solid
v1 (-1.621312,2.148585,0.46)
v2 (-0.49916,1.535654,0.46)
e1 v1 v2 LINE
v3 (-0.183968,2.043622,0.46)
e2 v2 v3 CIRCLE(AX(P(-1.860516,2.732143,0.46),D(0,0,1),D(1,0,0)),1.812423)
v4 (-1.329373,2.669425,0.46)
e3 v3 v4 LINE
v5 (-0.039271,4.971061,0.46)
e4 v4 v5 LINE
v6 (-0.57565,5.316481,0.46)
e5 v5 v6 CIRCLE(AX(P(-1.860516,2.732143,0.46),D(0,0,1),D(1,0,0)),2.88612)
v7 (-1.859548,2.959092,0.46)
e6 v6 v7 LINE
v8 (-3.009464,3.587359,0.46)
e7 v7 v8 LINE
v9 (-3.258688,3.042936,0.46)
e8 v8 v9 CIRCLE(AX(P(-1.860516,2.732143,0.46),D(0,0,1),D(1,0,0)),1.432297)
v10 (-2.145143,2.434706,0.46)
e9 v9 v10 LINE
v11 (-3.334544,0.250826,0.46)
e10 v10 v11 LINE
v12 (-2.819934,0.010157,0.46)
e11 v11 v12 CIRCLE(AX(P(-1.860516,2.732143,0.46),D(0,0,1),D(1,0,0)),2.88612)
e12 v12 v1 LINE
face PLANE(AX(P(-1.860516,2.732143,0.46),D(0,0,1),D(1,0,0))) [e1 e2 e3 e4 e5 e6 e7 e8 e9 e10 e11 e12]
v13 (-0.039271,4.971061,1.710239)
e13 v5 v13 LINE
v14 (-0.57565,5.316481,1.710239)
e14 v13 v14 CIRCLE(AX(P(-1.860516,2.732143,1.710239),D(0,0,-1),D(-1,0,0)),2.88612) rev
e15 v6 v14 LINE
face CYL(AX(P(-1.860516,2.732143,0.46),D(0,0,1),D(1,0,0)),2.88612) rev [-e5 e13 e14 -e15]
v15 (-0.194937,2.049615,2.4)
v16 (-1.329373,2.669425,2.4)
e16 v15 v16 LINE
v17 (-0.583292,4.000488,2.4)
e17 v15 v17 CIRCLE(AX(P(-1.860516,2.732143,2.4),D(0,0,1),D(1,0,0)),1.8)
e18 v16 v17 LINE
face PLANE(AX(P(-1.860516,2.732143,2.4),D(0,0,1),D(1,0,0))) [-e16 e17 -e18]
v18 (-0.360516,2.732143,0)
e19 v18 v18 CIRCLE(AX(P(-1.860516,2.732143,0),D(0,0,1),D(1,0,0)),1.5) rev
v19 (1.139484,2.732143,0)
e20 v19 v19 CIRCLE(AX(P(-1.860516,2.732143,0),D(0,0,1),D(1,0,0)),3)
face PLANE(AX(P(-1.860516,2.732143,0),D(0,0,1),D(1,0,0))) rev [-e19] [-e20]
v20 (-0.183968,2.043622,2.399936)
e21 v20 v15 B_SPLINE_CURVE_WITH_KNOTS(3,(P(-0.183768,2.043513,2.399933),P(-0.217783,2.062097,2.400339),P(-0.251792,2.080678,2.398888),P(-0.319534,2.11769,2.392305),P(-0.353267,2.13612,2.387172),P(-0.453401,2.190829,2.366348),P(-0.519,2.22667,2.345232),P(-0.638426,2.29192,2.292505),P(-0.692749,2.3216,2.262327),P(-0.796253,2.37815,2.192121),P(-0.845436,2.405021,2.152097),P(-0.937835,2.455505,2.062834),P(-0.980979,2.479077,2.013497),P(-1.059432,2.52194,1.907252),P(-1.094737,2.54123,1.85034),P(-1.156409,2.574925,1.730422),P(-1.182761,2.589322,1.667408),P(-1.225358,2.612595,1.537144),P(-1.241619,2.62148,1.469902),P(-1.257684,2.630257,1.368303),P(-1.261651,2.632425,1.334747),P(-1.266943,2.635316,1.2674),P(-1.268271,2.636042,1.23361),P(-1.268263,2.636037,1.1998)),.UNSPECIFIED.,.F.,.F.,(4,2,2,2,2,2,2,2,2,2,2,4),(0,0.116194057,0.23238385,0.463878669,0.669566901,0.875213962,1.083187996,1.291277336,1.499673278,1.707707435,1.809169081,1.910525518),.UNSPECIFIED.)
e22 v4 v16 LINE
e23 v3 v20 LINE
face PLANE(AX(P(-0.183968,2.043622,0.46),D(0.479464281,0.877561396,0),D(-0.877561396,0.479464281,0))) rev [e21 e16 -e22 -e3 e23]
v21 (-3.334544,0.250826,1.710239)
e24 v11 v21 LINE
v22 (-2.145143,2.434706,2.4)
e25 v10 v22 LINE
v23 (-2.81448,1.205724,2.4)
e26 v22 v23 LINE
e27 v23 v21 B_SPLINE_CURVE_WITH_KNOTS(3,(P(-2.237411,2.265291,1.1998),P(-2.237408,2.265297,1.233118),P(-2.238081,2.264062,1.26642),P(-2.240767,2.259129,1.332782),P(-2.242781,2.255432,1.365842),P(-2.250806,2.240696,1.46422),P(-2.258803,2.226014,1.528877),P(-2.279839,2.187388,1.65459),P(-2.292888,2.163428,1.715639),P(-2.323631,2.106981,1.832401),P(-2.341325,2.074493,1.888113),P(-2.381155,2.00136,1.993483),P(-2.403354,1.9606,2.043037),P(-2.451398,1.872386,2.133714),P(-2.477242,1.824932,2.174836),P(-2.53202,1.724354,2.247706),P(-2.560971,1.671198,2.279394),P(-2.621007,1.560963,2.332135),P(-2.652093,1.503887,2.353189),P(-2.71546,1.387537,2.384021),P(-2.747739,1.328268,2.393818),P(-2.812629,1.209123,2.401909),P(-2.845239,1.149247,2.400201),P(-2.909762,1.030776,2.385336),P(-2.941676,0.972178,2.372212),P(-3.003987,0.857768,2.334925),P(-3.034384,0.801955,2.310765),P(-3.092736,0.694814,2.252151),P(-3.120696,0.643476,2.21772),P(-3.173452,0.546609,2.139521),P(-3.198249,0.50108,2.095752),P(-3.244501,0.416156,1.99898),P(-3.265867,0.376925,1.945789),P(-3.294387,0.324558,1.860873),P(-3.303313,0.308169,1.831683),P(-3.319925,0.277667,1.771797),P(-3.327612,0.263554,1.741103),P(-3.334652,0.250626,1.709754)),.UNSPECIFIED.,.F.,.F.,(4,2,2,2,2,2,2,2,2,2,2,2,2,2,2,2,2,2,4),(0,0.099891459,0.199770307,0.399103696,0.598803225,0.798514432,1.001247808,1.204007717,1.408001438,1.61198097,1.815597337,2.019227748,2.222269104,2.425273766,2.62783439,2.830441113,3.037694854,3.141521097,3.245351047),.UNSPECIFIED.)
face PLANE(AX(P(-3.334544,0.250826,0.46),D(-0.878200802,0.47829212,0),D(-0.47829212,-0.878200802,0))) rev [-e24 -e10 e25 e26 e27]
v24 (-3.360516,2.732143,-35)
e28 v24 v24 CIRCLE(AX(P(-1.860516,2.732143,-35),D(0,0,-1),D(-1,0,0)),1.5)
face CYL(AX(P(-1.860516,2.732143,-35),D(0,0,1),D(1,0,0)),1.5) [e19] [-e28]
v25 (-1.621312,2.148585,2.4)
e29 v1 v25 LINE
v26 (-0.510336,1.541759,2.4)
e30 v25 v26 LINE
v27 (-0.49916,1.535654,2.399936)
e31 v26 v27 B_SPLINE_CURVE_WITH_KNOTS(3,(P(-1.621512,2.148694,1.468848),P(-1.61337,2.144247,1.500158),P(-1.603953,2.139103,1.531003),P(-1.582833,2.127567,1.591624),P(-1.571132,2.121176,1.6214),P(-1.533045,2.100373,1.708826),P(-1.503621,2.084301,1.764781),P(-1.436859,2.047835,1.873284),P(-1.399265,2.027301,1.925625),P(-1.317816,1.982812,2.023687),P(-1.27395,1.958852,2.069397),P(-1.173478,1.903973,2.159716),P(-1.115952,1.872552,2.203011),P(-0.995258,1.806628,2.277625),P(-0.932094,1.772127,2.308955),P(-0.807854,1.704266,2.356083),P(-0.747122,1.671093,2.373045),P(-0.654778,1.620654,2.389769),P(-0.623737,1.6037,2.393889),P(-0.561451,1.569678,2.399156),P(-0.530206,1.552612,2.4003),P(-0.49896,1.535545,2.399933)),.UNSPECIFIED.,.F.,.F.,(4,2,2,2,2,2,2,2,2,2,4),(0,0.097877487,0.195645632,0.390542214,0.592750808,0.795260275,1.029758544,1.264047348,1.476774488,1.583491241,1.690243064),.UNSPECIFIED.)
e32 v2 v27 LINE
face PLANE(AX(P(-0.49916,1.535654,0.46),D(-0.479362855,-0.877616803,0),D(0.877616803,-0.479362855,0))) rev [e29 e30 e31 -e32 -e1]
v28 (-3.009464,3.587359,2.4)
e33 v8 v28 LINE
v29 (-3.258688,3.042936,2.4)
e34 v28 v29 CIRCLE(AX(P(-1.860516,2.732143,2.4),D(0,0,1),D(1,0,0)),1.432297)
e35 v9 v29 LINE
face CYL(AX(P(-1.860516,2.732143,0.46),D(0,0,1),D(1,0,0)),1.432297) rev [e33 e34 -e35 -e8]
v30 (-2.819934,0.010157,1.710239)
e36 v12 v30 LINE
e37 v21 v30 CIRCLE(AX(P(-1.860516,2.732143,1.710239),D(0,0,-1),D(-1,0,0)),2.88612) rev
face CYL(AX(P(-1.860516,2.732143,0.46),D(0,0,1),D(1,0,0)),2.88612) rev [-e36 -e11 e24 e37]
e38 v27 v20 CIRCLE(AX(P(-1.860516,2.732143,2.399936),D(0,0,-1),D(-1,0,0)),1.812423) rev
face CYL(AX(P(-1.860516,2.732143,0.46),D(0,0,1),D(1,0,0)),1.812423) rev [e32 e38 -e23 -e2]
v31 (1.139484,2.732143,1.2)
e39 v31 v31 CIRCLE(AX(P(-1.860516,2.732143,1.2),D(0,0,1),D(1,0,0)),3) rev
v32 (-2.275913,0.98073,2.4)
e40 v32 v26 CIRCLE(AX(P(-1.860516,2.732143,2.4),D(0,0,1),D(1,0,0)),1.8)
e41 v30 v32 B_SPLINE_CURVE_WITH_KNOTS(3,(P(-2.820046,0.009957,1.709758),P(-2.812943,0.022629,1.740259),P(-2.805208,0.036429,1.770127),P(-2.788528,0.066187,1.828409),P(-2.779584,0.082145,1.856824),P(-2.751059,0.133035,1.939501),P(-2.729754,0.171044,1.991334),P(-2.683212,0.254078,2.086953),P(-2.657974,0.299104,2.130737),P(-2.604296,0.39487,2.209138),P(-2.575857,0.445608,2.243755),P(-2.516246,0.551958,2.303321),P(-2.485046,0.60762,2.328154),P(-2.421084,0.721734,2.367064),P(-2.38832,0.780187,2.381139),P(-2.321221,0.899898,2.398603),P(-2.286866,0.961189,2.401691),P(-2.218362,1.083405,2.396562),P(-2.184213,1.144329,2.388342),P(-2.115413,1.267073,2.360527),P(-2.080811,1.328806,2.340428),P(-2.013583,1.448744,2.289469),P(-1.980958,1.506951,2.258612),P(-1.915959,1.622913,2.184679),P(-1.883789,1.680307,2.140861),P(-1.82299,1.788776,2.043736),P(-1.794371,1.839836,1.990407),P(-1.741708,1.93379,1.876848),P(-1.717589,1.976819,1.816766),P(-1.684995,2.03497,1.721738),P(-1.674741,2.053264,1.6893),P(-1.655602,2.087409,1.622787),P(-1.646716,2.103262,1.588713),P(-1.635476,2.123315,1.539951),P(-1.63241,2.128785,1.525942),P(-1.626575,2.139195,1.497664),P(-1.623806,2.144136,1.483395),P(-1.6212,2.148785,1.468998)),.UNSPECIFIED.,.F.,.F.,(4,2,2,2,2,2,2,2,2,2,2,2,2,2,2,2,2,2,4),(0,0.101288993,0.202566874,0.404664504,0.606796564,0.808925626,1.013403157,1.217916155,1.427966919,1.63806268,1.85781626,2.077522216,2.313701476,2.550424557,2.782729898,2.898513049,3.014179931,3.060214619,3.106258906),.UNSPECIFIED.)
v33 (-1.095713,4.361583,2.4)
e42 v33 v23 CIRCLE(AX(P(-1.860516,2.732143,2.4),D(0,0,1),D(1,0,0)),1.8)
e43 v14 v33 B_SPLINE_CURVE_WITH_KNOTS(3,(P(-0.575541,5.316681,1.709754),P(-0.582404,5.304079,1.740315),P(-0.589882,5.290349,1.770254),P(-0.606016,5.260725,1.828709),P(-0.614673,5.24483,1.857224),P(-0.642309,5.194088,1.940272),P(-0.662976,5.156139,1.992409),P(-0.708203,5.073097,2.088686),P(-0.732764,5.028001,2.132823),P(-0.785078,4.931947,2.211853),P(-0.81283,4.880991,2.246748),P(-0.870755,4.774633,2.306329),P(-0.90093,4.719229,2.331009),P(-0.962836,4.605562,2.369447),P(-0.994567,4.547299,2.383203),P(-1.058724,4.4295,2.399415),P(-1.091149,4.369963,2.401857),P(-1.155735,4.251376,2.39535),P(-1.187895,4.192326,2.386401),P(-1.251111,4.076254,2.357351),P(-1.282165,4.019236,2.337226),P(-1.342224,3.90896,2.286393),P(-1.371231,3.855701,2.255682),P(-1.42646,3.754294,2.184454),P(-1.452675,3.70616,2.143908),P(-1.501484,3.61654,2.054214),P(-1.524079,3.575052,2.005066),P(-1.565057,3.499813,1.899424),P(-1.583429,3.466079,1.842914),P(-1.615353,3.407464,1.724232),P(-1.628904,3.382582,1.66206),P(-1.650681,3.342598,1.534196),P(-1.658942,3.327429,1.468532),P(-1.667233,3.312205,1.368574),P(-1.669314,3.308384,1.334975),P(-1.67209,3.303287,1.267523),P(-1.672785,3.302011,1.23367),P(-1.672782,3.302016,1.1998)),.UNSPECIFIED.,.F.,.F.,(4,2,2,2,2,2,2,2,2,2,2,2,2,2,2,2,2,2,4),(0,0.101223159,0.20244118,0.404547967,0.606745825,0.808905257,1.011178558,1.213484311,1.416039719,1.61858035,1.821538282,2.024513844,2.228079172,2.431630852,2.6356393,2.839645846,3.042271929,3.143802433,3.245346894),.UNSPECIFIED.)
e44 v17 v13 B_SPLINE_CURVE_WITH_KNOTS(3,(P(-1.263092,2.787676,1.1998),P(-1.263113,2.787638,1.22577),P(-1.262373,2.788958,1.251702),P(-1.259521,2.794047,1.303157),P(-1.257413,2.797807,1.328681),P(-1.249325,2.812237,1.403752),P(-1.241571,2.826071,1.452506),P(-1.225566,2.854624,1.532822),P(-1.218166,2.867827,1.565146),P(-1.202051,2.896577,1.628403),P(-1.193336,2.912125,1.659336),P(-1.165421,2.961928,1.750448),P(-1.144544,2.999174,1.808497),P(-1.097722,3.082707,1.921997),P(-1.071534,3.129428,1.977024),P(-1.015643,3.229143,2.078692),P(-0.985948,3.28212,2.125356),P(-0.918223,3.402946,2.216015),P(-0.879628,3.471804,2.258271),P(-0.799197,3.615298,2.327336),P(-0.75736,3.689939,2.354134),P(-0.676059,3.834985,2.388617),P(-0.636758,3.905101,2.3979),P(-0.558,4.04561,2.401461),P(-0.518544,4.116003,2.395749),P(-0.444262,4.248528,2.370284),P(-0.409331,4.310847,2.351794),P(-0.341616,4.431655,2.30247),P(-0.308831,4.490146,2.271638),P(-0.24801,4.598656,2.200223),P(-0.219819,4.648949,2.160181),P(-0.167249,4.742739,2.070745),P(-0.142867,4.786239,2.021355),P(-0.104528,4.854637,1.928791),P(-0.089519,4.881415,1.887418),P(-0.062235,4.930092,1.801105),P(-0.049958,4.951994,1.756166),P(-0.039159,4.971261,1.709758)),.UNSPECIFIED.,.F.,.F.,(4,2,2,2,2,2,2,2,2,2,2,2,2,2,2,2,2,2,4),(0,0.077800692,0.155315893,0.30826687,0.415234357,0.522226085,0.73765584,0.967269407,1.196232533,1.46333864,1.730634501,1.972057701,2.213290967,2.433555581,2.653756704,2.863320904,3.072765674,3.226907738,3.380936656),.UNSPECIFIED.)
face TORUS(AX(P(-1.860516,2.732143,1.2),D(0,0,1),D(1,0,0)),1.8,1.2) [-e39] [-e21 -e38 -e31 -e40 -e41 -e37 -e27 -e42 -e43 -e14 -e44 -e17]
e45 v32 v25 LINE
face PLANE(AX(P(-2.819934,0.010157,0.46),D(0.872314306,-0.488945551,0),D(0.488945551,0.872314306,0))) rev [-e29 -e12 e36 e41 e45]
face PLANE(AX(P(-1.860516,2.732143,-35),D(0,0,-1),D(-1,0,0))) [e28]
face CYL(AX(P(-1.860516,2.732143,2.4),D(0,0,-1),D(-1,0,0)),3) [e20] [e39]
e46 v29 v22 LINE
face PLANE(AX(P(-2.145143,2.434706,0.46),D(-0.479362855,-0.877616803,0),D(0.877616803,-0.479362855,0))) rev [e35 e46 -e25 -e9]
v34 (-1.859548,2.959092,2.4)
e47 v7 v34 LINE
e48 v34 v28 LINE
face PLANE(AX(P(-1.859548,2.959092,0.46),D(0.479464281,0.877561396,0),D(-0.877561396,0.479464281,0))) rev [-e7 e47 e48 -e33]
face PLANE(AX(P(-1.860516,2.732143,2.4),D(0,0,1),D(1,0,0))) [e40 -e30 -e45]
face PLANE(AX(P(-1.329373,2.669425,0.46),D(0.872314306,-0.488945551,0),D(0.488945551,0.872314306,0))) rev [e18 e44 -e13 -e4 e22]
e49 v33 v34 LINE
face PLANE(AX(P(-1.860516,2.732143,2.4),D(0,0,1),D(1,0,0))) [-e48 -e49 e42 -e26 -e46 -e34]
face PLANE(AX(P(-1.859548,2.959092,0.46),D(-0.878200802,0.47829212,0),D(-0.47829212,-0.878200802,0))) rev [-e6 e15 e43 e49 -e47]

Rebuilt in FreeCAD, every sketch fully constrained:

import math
import FreeCAD as App
import Part
import Sketcher


def edges_at(feature, points):
    """Names of the edges that pass closest to the given points."""
    edges = feature.Shape.Edges
    near = lambda p: min(range(len(edges)), key=lambda i: edges[i].distToShape(Part.Vertex(*p))[0])
    return sorted({f"Edge{near(p) + 1}" for p in points})

doc = App.newDocument("Part")
body = doc.addObject("PartDesign::Body", "Body")

sketch1 = body.newObject("Sketcher::SketchObject", "Sketch")
sketch1.AttachmentSupport = (doc.getObject("XY_Plane"), [""])
sketch1.MapMode = "FlatFace"
sketch1.addGeometry(Part.Circle(App.Vector(-1.9, 2.7, 0), App.Vector(0, 0, 1), 3), False)
sketch1.addConstraint([
    Sketcher.Constraint("Diameter", 0, 6.0),
    Sketcher.Constraint("DistanceX", 0, 3, -1, 1, 1.860516),
    Sketcher.Constraint("DistanceY", -1, 1, 0, 3, 2.732143),
])
pad1 = body.newObject("PartDesign::Pad", "Pad")
pad1.Profile = sketch1
pad1.Length = 2.4

sketch2 = body.newObject("Sketcher::SketchObject", "Sketch001")
sketch2.AttachmentSupport = (doc.getObject("XY_Plane"), [""])
sketch2.MapMode = "FlatFace"
sketch2.addGeometry(Part.Circle(App.Vector(-1.9, 2.7, 0), App.Vector(0, 0, 1), 1.5), False)
sketch2.addConstraint([
    Sketcher.Constraint("Diameter", 0, 3.0),
    Sketcher.Constraint("DistanceX", 0, 3, -1, 1, 1.860516),
    Sketcher.Constraint("DistanceY", -1, 1, 0, 3, 2.732143),
])
pad2 = body.newObject("PartDesign::Pad", "Pad001")
pad2.Profile = sketch2
pad2.Length = 35
pad2.Reversed = True
doc.recompute()

fillet = body.newObject("PartDesign::Fillet", "Fillet")
fillet.Base = (pad2, edges_at(pad2, [(-4.861, 2.732, 2.4)]))
fillet.Radius = 1.2

sketch3 = body.newObject("Sketcher::SketchObject", "Sketch002")
sketch3.AttachmentSupport = (doc.getObject("XY_Plane"), [""])
sketch3.MapMode = "FlatFace"
sketch3.AttachmentOffset = App.Placement(App.Vector(0, 0, 2.4), App.Rotation())
sketch3.addGeometry([
    Part.LineSegment(App.Vector(-0.57565, 5.316481, 0), App.Vector(-1.859548, 2.959092, 0)),
    Part.LineSegment(App.Vector(-1.859548, 2.959092, 0), App.Vector(-3.009464, 3.587359, 0)),
    Part.ArcOfCircle(Part.Circle(App.Vector(-1.860516, 2.732143, 0), App.Vector(0, 0, 1), 1.432297), math.radians(143.337927), math.radians(167.467762)),
    Part.LineSegment(App.Vector(-3.258688, 3.042936, 0), App.Vector(-2.145143, 2.434706, 0)),
    Part.LineSegment(App.Vector(-2.145143, 2.434706, 0), App.Vector(-3.334544, 0.250826, 0)),
    Part.ArcOfCircle(Part.Circle(App.Vector(-1.860516, 2.732143, 0), App.Vector(0, 0, 1), 2.88612), math.radians(-120.712451), math.radians(-109.416009)),
    Part.LineSegment(App.Vector(-2.819934, 0.010157, 0), App.Vector(-1.621312, 2.148585, 0)),
    Part.LineSegment(App.Vector(-1.621312, 2.148585, 0), App.Vector(-0.49916, 1.535654, 0)),
    Part.ArcOfCircle(Part.Circle(App.Vector(-1.860516, 2.732143, 0), App.Vector(0, 0, 1), 1.812423), math.radians(-41.312055), math.radians(-22.326858)),
    Part.LineSegment(App.Vector(-0.183968, 2.043622, 0), App.Vector(-1.329373, 2.669425, 0)),
    Part.LineSegment(App.Vector(-1.329373, 2.669425, 0), App.Vector(-0.039271, 4.971061, 0)),
    Part.ArcOfCircle(Part.Circle(App.Vector(-1.860516, 2.732143, 0), App.Vector(0, 0, 1), 2.88612), math.radians(50.87341), math.radians(63.564618)),
], False)
sketch3.addConstraint([
    Sketcher.Constraint("Coincident", 0, 2, 1, 1),
    Sketcher.Constraint("Coincident", 1, 2, 2, 1),
    Sketcher.Constraint("Coincident", 2, 2, 3, 1),
    Sketcher.Constraint("Coincident", 3, 2, 4, 1),
    Sketcher.Constraint("Coincident", 4, 2, 5, 1),
    Sketcher.Constraint("Coincident", 5, 2, 6, 1),
    Sketcher.Constraint("Coincident", 6, 2, 7, 1),
    Sketcher.Constraint("Coincident", 7, 2, 8, 1),
    Sketcher.Constraint("Coincident", 8, 2, 9, 1),
    Sketcher.Constraint("Coincident", 9, 2, 10, 1),
    Sketcher.Constraint("Coincident", 10, 2, 11, 1),
    Sketcher.Constraint("Coincident", 11, 2, 0, 1),
    Sketcher.Constraint("Coincident", 5, 3, 2, 3),
    Sketcher.Constraint("Coincident", 8, 3, 2, 3),
    Sketcher.Constraint("Coincident", 11, 3, 2, 3),
    Sketcher.Constraint("Radius", 5, 2.88612),
    Sketcher.Constraint("Radius", 11, 2.88612),
    Sketcher.Constraint("Radius", 2, 1.432297),
    Sketcher.Constraint("Radius", 8, 1.812423),
    Sketcher.Constraint("DistanceX", 4, 2, 3, 2, 1.189401),
    Sketcher.Constraint("DistanceX", 9, 2, 10, 2, 1.290102),
    Sketcher.Constraint("DistanceX", 0, 2, 11, 2, 1.283899),
    Sketcher.Constraint("Distance", 0, 2.68434),
    Sketcher.Constraint("Distance", 3, 1.268828),
    Sketcher.Constraint("Distance", 6, 2.451442),
    Sketcher.Constraint("Distance", 10, 2.638539),
    Sketcher.Constraint("DistanceX", 0, 2, -1, 1, 1.859548),
    Sketcher.Constraint("DistanceY", -1, 1, 0, 2, 2.959092),
    Sketcher.Constraint("DistanceY", -1, 1, 1, 2, 3.587359),
    Sketcher.Constraint("DistanceX", 7, 2, -1, 1, 0.49916),
    Sketcher.Constraint("DistanceY", -1, 1, 8, 2, 2.043622),
    Sketcher.Constraint("DistanceX", 10, 2, -1, 1, 0.039271),
    Sketcher.Constraint("DistanceY", -1, 1, 10, 2, 4.971061),
    Sketcher.Constraint("DistanceX", 2, 2, 0, 2, 1.39914),
    Sketcher.Constraint("DistanceY", 4, 2, 3, 2, 2.18388),
    Sketcher.Constraint("DistanceX", 4, 2, 5, 2, 0.51461),
    Sketcher.Constraint("DistanceX", 3, 2, 6, 2, 0.523831),
])
pocket1 = body.newObject("PartDesign::Pocket", "Pocket")
pocket1.Profile = sketch3
pocket1.Length = 1.94

doc.recompute()
